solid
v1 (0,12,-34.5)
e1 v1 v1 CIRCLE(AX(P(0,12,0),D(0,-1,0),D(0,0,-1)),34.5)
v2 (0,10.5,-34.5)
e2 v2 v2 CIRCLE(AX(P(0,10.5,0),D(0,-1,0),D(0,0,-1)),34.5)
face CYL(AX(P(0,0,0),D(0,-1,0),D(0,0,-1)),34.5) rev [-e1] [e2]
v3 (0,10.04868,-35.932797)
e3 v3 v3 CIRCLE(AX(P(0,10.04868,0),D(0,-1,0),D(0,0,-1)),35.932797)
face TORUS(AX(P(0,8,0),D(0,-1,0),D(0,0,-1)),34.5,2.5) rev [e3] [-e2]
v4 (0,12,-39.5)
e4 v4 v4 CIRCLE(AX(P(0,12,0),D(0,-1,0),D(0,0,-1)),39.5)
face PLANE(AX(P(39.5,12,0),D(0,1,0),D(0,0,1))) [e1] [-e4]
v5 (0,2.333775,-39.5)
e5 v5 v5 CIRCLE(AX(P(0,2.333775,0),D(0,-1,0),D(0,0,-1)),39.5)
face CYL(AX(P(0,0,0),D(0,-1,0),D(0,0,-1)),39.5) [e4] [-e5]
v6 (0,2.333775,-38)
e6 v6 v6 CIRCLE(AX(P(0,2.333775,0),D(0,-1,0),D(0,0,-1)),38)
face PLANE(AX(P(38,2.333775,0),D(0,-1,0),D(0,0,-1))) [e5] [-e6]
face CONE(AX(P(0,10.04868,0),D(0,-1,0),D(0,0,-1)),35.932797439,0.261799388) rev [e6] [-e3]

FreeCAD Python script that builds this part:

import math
import FreeCAD as App
import Part
import Sketcher
Q = App.Units.Quantity

doc = App.newDocument("Part")
body = doc.addObject("PartDesign::Body", "Body")

# Sketch on XY plane
sketch1 = doc.addObject("Sketcher::SketchObject", "Sketch")
body.addObject(sketch1)
sketch1.AttachmentSupport = (doc.XY_Plane, [""])
sketch1.MapMode = "FlatFace"
sketch1.addGeometry(Part.LineSegment(App.Vector(35.9, 10, 0), App.Vector(38, 2.3, 0)), False)
sketch1.addGeometry(Part.LineSegment(App.Vector(38, 2.3, 0), App.Vector(39.5, 2.3, 0)), False)
sketch1.addGeometry(Part.LineSegment(App.Vector(39.5, 2.3, 0), App.Vector(39.5, 12, 0)), False)
sketch1.addGeometry(Part.LineSegment(App.Vector(39.5, 12, 0), App.Vector(34.5, 12, 0)), False)
sketch1.addGeometry(Part.LineSegment(App.Vector(34.5, 12, 0), App.Vector(34.5, 10.5, 0)), False)
sketch1.addGeometry(Part.ArcOfCircle(Part.Circle(App.Vector(34.5, 8, 0), App.Vector(0, 0, 1), 2.5), math.radians(55), math.radians(90)), False)
sketch1.addConstraint(Sketcher.Constraint("Coincident", 0, 2, 1, 1))
sketch1.addConstraint(Sketcher.Constraint("Coincident", 1, 2, 2, 1))
sketch1.addConstraint(Sketcher.Constraint("Coincident", 2, 2, 3, 1))
sketch1.addConstraint(Sketcher.Constraint("Coincident", 3, 2, 4, 1))
sketch1.addConstraint(Sketcher.Constraint("Coincident", 4, 2, 5, 2))
sketch1.addConstraint(Sketcher.Constraint("Coincident", 5, 1, 0, 1))
sketch1.addConstraint(Sketcher.Constraint("Horizontal", 1))
sketch1.addConstraint(Sketcher.Constraint("Vertical", 2))
sketch1.addConstraint(Sketcher.Constraint("Horizontal", 3))
sketch1.addConstraint(Sketcher.Constraint("Vertical", 4))
sketch1.addConstraint(Sketcher.Constraint("Vertical", 5, 3, 3, 2))
sketch1.addConstraint(Sketcher.Constraint("Equal", 1, 4))
sketch1.addConstraint(Sketcher.Constraint("Radius", 5, 2.5))
sketch1.addConstraint(Sketcher.Constraint("DistanceX", 3, 2, 3, 1, 5.0))
sketch1.addConstraint(Sketcher.Constraint("Angle", 0, Q("-75 deg")))
sketch1.addConstraint(Sketcher.Constraint("DistanceX", 1, 1, 1, 2, 1.5))
sketch1.addConstraint(Sketcher.Constraint("DistanceY", -1, 1, 5, 3, 8.0))
sketch1.addConstraint(Sketcher.Constraint("DistanceX", -1, 1, 0, 2, 38.0))
sketch1.addConstraint(Sketcher.Constraint("DistanceY", 2, 1, 2, 2, 9.666225))
revolution = doc.addObject("PartDesign::Revolution", "Revolution")
body.addObject(revolution)
revolution.Profile = sketch1
revolution.ReferenceAxis = (sketch1, ["V_Axis"])
revolution.Angle = 360

doc.recompute()
